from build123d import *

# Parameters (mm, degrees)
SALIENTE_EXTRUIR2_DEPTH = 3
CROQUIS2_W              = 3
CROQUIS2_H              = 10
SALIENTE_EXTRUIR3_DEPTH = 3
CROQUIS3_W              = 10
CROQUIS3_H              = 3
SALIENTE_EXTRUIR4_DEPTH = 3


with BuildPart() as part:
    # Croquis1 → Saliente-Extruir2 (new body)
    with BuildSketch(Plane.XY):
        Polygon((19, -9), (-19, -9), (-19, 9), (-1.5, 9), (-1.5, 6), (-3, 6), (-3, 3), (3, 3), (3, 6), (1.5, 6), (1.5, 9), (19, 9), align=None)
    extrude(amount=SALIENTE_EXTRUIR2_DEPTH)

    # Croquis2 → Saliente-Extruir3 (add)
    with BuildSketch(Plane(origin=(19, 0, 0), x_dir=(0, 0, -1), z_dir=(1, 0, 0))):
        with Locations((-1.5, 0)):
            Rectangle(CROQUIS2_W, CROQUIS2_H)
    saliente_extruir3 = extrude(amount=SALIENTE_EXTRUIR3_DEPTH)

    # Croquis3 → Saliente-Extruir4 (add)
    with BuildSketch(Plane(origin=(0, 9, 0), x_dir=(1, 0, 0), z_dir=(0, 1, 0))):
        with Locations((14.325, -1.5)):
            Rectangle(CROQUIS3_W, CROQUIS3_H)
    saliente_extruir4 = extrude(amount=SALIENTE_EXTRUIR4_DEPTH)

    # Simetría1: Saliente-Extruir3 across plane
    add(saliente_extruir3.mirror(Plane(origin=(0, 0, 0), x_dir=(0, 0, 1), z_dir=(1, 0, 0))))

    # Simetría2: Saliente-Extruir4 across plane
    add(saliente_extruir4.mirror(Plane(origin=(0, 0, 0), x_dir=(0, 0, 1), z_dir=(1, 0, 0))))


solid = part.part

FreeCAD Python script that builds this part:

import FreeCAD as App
import Part
import Sketcher

V = App.Vector
Q = App.Units.Quantity


def add_polygon(sketch, points):
    """Adds a closed chain of lines whose ends are joined by coincident constraints."""
    first, n = sketch.GeometryCount, len(points)
    for a, b in zip(points, points[1:] + points[:1]):
        sketch.addGeometry(Part.LineSegment(App.Vector(*a, 0), App.Vector(*b, 0)), False)
    for i in range(n):
        sketch.addConstraint(Sketcher.Constraint("Coincident", first + i, 2, first + (i + 1) % n, 1))

doc = App.newDocument("Part")
params = doc.addObject("Spreadsheet::Sheet", "Params")
for row, (alias, value) in enumerate([
    ("sketch1_width", "38 mm"),
    ("sketch1_width2", "6 mm"),
    ("sketch1_height", "18 mm"),
    ("sketch1_height2", "3 mm"),
    ("sketch1_width3", "17.5 mm"),
    ("pad1_length", "3 mm"),
    ("sketch2_width", "10 mm"),
    ("sketch2_height", "3 mm"),
    ("pad2_length", "3 mm"),
    ("sketch3_width", "10 mm"),
    ("sketch3_height", "3 mm"),
    ("pad3_length", "3 mm"),
], start=1):
    params.set(f"A{row}", alias)
    params.set(f"B{row}", "=" + value)
    params.setAlias(f"B{row}", alias)

body = doc.addObject("PartDesign::Body", "Body")

# Sketch on XY plane
sketch1 = body.newObject("Sketcher::SketchObject", "Sketch")
sketch1.AttachmentSupport = (doc.getObject("XY_Plane"), [""])
sketch1.MapMode = "FlatFace"
add_polygon(sketch1, [(-19, -9), (19, -9), (19, 9), (1.5, 9), (1.5, 6), (3, 6), (3, 3), (-3, 3), (-3, 6), (-1.5, 6), (-1.5, 9), (-19, 9)])  # lines 0-11
sketch1.addConstraint(Sketcher.Constraint("Horizontal", 0))
sketch1.addConstraint(Sketcher.Constraint("Vertical", 1))
sketch1.addConstraint(Sketcher.Constraint("Horizontal", 2))
sketch1.addConstraint(Sketcher.Constraint("Vertical", 3))
sketch1.addConstraint(Sketcher.Constraint("Horizontal", 4))
sketch1.addConstraint(Sketcher.Constraint("Vertical", 5))
sketch1.addConstraint(Sketcher.Constraint("Horizontal", 6))
sketch1.addConstraint(Sketcher.Constraint("Vertical", 7))
sketch1.addConstraint(Sketcher.Constraint("Horizontal", 8))
sketch1.addConstraint(Sketcher.Constraint("Vertical", 9))
sketch1.addConstraint(Sketcher.Constraint("Horizontal", 10))
sketch1.addConstraint(Sketcher.Constraint("Vertical", 11))
sketch1.addConstraint(Sketcher.Constraint("Symmetric", 0, 2, 10, 2, -1, 1))
sketch1.addConstraint(Sketcher.Constraint("Symmetric", 4, 2, 7, 2, -2))
sketch1.addConstraint(Sketcher.Constraint("Symmetric", 2, 2, 9, 2, -2))
sketch1.addConstraint(Sketcher.Constraint("Equal", 3, 5))
sketch1.addConstraint(Sketcher.Constraint("DistanceX", 0, 1, 0, 2, Q("38 mm")))
sketch1.addConstraint(Sketcher.Constraint("DistanceX", 6, 2, 6, 1, Q("6 mm")))
sketch1.addConstraint(Sketcher.Constraint("DistanceY", 1, 1, 1, 2, Q("18 mm")))
sketch1.addConstraint(Sketcher.Constraint("DistanceY", 3, 2, 3, 1, Q("3 mm")))
sketch1.addConstraint(Sketcher.Constraint("DistanceX", 2, 2, 2, 1, Q("17.5 mm")))
sketch1.setExpression("Constraints[28]", "Params.sketch1_width")
sketch1.setExpression("Constraints[29]", "Params.sketch1_width2")
sketch1.setExpression("Constraints[30]", "Params.sketch1_height")
sketch1.setExpression("Constraints[31]", "Params.sketch1_height2")
sketch1.setExpression("Constraints[32]", "Params.sketch1_width3")
pad1 = body.newObject("PartDesign::Pad", "Pad")
pad1.Profile = sketch1
pad1.setExpression("Length", "Params.pad1_length")

# Sketch on YZ plane
sketch2 = body.newObject("Sketcher::SketchObject", "Sketch001")
sketch2.AttachmentSupport = (doc.getObject("YZ_Plane"), [""])
sketch2.MapMode = "FlatFace"
sketch2.AttachmentOffset = App.Placement(V(0, 0, 19), App.Rotation())
add_polygon(sketch2, [(5, 3), (-5, 3), (-5, 0), (5, 0)])  # lines 0-3
sketch2.addConstraint(Sketcher.Constraint("Horizontal", 0))
sketch2.addConstraint(Sketcher.Constraint("Vertical", 1))
sketch2.addConstraint(Sketcher.Constraint("Horizontal", 2))
sketch2.addConstraint(Sketcher.Constraint("Vertical", 3))
sketch2.addConstraint(Sketcher.Constraint("Symmetric", 1, 2, 2, 2, -1, 1))
sketch2.addConstraint(Sketcher.Constraint("DistanceX", 0, 2, 0, 1, Q("10 mm")))
sketch2.addConstraint(Sketcher.Constraint("DistanceY", 1, 2, 1, 1, Q("3 mm")))
sketch2.setExpression("Constraints[9]", "Params.sketch2_width")
sketch2.setExpression("Constraints[10]", "Params.sketch2_height")
pad2 = body.newObject("PartDesign::Pad", "Pad001")
pad2.Profile = sketch2
pad2.setExpression("Length", "Params.pad2_length")

# Sketch on XZ plane
sketch3 = body.newObject("Sketcher::SketchObject", "Sketch002")
sketch3.AttachmentSupport = (doc.getObject("XZ_Plane"), [""])
sketch3.MapMode = "FlatFace"
sketch3.AttachmentOffset = App.Placement(V(0, 0, -9), App.Rotation())
add_polygon(sketch3, [(9.3, 0), (9.3, 3), (19.3, 3), (19.3, 0)])  # lines 0-3
sketch3.addConstraint(Sketcher.Constraint("Vertical", 0))
sketch3.addConstraint(Sketcher.Constraint("Horizontal", 1))
sketch3.addConstraint(Sketcher.Constraint("Vertical", 2))
sketch3.addConstraint(Sketcher.Constraint("Horizontal", 3))
sketch3.addConstraint(Sketcher.Constraint("PointOnObject", 2, 2, -1))
sketch3.addConstraint(Sketcher.Constraint("DistanceX", 1, 1, 1, 2, Q("10 mm")))
sketch3.addConstraint(Sketcher.Constraint("DistanceY", 0, 1, 0, 2, Q("3 mm")))
sketch3.addConstraint(Sketcher.Constraint("DistanceX", -1, 1, 0, 2, Q("9.325 mm")))
sketch3.setExpression("Constraints[9]", "Params.sketch3_width")
sketch3.setExpression("Constraints[10]", "Params.sketch3_height")
pad3 = body.newObject("PartDesign::Pad", "Pad002")
pad3.Profile = sketch3
pad3.setExpression("Length", "Params.pad3_length")
pad3.Reversed = True
doc.recompute()

mirrored = body.newObject("PartDesign::Mirrored", "Mirrored")
mirrored.Originals = [pad2]
mirrored.MirrorPlane = (doc.getObject("YZ_Plane"), [""])
body.Tip = mirrored
doc.recompute()

mirrored2 = body.newObject("PartDesign::Mirrored", "Mirrored001")
mirrored2.Originals = [pad3]
mirrored2.MirrorPlane = (doc.getObject("YZ_Plane"), [""])
body.Tip = mirrored2

doc.recompute()
